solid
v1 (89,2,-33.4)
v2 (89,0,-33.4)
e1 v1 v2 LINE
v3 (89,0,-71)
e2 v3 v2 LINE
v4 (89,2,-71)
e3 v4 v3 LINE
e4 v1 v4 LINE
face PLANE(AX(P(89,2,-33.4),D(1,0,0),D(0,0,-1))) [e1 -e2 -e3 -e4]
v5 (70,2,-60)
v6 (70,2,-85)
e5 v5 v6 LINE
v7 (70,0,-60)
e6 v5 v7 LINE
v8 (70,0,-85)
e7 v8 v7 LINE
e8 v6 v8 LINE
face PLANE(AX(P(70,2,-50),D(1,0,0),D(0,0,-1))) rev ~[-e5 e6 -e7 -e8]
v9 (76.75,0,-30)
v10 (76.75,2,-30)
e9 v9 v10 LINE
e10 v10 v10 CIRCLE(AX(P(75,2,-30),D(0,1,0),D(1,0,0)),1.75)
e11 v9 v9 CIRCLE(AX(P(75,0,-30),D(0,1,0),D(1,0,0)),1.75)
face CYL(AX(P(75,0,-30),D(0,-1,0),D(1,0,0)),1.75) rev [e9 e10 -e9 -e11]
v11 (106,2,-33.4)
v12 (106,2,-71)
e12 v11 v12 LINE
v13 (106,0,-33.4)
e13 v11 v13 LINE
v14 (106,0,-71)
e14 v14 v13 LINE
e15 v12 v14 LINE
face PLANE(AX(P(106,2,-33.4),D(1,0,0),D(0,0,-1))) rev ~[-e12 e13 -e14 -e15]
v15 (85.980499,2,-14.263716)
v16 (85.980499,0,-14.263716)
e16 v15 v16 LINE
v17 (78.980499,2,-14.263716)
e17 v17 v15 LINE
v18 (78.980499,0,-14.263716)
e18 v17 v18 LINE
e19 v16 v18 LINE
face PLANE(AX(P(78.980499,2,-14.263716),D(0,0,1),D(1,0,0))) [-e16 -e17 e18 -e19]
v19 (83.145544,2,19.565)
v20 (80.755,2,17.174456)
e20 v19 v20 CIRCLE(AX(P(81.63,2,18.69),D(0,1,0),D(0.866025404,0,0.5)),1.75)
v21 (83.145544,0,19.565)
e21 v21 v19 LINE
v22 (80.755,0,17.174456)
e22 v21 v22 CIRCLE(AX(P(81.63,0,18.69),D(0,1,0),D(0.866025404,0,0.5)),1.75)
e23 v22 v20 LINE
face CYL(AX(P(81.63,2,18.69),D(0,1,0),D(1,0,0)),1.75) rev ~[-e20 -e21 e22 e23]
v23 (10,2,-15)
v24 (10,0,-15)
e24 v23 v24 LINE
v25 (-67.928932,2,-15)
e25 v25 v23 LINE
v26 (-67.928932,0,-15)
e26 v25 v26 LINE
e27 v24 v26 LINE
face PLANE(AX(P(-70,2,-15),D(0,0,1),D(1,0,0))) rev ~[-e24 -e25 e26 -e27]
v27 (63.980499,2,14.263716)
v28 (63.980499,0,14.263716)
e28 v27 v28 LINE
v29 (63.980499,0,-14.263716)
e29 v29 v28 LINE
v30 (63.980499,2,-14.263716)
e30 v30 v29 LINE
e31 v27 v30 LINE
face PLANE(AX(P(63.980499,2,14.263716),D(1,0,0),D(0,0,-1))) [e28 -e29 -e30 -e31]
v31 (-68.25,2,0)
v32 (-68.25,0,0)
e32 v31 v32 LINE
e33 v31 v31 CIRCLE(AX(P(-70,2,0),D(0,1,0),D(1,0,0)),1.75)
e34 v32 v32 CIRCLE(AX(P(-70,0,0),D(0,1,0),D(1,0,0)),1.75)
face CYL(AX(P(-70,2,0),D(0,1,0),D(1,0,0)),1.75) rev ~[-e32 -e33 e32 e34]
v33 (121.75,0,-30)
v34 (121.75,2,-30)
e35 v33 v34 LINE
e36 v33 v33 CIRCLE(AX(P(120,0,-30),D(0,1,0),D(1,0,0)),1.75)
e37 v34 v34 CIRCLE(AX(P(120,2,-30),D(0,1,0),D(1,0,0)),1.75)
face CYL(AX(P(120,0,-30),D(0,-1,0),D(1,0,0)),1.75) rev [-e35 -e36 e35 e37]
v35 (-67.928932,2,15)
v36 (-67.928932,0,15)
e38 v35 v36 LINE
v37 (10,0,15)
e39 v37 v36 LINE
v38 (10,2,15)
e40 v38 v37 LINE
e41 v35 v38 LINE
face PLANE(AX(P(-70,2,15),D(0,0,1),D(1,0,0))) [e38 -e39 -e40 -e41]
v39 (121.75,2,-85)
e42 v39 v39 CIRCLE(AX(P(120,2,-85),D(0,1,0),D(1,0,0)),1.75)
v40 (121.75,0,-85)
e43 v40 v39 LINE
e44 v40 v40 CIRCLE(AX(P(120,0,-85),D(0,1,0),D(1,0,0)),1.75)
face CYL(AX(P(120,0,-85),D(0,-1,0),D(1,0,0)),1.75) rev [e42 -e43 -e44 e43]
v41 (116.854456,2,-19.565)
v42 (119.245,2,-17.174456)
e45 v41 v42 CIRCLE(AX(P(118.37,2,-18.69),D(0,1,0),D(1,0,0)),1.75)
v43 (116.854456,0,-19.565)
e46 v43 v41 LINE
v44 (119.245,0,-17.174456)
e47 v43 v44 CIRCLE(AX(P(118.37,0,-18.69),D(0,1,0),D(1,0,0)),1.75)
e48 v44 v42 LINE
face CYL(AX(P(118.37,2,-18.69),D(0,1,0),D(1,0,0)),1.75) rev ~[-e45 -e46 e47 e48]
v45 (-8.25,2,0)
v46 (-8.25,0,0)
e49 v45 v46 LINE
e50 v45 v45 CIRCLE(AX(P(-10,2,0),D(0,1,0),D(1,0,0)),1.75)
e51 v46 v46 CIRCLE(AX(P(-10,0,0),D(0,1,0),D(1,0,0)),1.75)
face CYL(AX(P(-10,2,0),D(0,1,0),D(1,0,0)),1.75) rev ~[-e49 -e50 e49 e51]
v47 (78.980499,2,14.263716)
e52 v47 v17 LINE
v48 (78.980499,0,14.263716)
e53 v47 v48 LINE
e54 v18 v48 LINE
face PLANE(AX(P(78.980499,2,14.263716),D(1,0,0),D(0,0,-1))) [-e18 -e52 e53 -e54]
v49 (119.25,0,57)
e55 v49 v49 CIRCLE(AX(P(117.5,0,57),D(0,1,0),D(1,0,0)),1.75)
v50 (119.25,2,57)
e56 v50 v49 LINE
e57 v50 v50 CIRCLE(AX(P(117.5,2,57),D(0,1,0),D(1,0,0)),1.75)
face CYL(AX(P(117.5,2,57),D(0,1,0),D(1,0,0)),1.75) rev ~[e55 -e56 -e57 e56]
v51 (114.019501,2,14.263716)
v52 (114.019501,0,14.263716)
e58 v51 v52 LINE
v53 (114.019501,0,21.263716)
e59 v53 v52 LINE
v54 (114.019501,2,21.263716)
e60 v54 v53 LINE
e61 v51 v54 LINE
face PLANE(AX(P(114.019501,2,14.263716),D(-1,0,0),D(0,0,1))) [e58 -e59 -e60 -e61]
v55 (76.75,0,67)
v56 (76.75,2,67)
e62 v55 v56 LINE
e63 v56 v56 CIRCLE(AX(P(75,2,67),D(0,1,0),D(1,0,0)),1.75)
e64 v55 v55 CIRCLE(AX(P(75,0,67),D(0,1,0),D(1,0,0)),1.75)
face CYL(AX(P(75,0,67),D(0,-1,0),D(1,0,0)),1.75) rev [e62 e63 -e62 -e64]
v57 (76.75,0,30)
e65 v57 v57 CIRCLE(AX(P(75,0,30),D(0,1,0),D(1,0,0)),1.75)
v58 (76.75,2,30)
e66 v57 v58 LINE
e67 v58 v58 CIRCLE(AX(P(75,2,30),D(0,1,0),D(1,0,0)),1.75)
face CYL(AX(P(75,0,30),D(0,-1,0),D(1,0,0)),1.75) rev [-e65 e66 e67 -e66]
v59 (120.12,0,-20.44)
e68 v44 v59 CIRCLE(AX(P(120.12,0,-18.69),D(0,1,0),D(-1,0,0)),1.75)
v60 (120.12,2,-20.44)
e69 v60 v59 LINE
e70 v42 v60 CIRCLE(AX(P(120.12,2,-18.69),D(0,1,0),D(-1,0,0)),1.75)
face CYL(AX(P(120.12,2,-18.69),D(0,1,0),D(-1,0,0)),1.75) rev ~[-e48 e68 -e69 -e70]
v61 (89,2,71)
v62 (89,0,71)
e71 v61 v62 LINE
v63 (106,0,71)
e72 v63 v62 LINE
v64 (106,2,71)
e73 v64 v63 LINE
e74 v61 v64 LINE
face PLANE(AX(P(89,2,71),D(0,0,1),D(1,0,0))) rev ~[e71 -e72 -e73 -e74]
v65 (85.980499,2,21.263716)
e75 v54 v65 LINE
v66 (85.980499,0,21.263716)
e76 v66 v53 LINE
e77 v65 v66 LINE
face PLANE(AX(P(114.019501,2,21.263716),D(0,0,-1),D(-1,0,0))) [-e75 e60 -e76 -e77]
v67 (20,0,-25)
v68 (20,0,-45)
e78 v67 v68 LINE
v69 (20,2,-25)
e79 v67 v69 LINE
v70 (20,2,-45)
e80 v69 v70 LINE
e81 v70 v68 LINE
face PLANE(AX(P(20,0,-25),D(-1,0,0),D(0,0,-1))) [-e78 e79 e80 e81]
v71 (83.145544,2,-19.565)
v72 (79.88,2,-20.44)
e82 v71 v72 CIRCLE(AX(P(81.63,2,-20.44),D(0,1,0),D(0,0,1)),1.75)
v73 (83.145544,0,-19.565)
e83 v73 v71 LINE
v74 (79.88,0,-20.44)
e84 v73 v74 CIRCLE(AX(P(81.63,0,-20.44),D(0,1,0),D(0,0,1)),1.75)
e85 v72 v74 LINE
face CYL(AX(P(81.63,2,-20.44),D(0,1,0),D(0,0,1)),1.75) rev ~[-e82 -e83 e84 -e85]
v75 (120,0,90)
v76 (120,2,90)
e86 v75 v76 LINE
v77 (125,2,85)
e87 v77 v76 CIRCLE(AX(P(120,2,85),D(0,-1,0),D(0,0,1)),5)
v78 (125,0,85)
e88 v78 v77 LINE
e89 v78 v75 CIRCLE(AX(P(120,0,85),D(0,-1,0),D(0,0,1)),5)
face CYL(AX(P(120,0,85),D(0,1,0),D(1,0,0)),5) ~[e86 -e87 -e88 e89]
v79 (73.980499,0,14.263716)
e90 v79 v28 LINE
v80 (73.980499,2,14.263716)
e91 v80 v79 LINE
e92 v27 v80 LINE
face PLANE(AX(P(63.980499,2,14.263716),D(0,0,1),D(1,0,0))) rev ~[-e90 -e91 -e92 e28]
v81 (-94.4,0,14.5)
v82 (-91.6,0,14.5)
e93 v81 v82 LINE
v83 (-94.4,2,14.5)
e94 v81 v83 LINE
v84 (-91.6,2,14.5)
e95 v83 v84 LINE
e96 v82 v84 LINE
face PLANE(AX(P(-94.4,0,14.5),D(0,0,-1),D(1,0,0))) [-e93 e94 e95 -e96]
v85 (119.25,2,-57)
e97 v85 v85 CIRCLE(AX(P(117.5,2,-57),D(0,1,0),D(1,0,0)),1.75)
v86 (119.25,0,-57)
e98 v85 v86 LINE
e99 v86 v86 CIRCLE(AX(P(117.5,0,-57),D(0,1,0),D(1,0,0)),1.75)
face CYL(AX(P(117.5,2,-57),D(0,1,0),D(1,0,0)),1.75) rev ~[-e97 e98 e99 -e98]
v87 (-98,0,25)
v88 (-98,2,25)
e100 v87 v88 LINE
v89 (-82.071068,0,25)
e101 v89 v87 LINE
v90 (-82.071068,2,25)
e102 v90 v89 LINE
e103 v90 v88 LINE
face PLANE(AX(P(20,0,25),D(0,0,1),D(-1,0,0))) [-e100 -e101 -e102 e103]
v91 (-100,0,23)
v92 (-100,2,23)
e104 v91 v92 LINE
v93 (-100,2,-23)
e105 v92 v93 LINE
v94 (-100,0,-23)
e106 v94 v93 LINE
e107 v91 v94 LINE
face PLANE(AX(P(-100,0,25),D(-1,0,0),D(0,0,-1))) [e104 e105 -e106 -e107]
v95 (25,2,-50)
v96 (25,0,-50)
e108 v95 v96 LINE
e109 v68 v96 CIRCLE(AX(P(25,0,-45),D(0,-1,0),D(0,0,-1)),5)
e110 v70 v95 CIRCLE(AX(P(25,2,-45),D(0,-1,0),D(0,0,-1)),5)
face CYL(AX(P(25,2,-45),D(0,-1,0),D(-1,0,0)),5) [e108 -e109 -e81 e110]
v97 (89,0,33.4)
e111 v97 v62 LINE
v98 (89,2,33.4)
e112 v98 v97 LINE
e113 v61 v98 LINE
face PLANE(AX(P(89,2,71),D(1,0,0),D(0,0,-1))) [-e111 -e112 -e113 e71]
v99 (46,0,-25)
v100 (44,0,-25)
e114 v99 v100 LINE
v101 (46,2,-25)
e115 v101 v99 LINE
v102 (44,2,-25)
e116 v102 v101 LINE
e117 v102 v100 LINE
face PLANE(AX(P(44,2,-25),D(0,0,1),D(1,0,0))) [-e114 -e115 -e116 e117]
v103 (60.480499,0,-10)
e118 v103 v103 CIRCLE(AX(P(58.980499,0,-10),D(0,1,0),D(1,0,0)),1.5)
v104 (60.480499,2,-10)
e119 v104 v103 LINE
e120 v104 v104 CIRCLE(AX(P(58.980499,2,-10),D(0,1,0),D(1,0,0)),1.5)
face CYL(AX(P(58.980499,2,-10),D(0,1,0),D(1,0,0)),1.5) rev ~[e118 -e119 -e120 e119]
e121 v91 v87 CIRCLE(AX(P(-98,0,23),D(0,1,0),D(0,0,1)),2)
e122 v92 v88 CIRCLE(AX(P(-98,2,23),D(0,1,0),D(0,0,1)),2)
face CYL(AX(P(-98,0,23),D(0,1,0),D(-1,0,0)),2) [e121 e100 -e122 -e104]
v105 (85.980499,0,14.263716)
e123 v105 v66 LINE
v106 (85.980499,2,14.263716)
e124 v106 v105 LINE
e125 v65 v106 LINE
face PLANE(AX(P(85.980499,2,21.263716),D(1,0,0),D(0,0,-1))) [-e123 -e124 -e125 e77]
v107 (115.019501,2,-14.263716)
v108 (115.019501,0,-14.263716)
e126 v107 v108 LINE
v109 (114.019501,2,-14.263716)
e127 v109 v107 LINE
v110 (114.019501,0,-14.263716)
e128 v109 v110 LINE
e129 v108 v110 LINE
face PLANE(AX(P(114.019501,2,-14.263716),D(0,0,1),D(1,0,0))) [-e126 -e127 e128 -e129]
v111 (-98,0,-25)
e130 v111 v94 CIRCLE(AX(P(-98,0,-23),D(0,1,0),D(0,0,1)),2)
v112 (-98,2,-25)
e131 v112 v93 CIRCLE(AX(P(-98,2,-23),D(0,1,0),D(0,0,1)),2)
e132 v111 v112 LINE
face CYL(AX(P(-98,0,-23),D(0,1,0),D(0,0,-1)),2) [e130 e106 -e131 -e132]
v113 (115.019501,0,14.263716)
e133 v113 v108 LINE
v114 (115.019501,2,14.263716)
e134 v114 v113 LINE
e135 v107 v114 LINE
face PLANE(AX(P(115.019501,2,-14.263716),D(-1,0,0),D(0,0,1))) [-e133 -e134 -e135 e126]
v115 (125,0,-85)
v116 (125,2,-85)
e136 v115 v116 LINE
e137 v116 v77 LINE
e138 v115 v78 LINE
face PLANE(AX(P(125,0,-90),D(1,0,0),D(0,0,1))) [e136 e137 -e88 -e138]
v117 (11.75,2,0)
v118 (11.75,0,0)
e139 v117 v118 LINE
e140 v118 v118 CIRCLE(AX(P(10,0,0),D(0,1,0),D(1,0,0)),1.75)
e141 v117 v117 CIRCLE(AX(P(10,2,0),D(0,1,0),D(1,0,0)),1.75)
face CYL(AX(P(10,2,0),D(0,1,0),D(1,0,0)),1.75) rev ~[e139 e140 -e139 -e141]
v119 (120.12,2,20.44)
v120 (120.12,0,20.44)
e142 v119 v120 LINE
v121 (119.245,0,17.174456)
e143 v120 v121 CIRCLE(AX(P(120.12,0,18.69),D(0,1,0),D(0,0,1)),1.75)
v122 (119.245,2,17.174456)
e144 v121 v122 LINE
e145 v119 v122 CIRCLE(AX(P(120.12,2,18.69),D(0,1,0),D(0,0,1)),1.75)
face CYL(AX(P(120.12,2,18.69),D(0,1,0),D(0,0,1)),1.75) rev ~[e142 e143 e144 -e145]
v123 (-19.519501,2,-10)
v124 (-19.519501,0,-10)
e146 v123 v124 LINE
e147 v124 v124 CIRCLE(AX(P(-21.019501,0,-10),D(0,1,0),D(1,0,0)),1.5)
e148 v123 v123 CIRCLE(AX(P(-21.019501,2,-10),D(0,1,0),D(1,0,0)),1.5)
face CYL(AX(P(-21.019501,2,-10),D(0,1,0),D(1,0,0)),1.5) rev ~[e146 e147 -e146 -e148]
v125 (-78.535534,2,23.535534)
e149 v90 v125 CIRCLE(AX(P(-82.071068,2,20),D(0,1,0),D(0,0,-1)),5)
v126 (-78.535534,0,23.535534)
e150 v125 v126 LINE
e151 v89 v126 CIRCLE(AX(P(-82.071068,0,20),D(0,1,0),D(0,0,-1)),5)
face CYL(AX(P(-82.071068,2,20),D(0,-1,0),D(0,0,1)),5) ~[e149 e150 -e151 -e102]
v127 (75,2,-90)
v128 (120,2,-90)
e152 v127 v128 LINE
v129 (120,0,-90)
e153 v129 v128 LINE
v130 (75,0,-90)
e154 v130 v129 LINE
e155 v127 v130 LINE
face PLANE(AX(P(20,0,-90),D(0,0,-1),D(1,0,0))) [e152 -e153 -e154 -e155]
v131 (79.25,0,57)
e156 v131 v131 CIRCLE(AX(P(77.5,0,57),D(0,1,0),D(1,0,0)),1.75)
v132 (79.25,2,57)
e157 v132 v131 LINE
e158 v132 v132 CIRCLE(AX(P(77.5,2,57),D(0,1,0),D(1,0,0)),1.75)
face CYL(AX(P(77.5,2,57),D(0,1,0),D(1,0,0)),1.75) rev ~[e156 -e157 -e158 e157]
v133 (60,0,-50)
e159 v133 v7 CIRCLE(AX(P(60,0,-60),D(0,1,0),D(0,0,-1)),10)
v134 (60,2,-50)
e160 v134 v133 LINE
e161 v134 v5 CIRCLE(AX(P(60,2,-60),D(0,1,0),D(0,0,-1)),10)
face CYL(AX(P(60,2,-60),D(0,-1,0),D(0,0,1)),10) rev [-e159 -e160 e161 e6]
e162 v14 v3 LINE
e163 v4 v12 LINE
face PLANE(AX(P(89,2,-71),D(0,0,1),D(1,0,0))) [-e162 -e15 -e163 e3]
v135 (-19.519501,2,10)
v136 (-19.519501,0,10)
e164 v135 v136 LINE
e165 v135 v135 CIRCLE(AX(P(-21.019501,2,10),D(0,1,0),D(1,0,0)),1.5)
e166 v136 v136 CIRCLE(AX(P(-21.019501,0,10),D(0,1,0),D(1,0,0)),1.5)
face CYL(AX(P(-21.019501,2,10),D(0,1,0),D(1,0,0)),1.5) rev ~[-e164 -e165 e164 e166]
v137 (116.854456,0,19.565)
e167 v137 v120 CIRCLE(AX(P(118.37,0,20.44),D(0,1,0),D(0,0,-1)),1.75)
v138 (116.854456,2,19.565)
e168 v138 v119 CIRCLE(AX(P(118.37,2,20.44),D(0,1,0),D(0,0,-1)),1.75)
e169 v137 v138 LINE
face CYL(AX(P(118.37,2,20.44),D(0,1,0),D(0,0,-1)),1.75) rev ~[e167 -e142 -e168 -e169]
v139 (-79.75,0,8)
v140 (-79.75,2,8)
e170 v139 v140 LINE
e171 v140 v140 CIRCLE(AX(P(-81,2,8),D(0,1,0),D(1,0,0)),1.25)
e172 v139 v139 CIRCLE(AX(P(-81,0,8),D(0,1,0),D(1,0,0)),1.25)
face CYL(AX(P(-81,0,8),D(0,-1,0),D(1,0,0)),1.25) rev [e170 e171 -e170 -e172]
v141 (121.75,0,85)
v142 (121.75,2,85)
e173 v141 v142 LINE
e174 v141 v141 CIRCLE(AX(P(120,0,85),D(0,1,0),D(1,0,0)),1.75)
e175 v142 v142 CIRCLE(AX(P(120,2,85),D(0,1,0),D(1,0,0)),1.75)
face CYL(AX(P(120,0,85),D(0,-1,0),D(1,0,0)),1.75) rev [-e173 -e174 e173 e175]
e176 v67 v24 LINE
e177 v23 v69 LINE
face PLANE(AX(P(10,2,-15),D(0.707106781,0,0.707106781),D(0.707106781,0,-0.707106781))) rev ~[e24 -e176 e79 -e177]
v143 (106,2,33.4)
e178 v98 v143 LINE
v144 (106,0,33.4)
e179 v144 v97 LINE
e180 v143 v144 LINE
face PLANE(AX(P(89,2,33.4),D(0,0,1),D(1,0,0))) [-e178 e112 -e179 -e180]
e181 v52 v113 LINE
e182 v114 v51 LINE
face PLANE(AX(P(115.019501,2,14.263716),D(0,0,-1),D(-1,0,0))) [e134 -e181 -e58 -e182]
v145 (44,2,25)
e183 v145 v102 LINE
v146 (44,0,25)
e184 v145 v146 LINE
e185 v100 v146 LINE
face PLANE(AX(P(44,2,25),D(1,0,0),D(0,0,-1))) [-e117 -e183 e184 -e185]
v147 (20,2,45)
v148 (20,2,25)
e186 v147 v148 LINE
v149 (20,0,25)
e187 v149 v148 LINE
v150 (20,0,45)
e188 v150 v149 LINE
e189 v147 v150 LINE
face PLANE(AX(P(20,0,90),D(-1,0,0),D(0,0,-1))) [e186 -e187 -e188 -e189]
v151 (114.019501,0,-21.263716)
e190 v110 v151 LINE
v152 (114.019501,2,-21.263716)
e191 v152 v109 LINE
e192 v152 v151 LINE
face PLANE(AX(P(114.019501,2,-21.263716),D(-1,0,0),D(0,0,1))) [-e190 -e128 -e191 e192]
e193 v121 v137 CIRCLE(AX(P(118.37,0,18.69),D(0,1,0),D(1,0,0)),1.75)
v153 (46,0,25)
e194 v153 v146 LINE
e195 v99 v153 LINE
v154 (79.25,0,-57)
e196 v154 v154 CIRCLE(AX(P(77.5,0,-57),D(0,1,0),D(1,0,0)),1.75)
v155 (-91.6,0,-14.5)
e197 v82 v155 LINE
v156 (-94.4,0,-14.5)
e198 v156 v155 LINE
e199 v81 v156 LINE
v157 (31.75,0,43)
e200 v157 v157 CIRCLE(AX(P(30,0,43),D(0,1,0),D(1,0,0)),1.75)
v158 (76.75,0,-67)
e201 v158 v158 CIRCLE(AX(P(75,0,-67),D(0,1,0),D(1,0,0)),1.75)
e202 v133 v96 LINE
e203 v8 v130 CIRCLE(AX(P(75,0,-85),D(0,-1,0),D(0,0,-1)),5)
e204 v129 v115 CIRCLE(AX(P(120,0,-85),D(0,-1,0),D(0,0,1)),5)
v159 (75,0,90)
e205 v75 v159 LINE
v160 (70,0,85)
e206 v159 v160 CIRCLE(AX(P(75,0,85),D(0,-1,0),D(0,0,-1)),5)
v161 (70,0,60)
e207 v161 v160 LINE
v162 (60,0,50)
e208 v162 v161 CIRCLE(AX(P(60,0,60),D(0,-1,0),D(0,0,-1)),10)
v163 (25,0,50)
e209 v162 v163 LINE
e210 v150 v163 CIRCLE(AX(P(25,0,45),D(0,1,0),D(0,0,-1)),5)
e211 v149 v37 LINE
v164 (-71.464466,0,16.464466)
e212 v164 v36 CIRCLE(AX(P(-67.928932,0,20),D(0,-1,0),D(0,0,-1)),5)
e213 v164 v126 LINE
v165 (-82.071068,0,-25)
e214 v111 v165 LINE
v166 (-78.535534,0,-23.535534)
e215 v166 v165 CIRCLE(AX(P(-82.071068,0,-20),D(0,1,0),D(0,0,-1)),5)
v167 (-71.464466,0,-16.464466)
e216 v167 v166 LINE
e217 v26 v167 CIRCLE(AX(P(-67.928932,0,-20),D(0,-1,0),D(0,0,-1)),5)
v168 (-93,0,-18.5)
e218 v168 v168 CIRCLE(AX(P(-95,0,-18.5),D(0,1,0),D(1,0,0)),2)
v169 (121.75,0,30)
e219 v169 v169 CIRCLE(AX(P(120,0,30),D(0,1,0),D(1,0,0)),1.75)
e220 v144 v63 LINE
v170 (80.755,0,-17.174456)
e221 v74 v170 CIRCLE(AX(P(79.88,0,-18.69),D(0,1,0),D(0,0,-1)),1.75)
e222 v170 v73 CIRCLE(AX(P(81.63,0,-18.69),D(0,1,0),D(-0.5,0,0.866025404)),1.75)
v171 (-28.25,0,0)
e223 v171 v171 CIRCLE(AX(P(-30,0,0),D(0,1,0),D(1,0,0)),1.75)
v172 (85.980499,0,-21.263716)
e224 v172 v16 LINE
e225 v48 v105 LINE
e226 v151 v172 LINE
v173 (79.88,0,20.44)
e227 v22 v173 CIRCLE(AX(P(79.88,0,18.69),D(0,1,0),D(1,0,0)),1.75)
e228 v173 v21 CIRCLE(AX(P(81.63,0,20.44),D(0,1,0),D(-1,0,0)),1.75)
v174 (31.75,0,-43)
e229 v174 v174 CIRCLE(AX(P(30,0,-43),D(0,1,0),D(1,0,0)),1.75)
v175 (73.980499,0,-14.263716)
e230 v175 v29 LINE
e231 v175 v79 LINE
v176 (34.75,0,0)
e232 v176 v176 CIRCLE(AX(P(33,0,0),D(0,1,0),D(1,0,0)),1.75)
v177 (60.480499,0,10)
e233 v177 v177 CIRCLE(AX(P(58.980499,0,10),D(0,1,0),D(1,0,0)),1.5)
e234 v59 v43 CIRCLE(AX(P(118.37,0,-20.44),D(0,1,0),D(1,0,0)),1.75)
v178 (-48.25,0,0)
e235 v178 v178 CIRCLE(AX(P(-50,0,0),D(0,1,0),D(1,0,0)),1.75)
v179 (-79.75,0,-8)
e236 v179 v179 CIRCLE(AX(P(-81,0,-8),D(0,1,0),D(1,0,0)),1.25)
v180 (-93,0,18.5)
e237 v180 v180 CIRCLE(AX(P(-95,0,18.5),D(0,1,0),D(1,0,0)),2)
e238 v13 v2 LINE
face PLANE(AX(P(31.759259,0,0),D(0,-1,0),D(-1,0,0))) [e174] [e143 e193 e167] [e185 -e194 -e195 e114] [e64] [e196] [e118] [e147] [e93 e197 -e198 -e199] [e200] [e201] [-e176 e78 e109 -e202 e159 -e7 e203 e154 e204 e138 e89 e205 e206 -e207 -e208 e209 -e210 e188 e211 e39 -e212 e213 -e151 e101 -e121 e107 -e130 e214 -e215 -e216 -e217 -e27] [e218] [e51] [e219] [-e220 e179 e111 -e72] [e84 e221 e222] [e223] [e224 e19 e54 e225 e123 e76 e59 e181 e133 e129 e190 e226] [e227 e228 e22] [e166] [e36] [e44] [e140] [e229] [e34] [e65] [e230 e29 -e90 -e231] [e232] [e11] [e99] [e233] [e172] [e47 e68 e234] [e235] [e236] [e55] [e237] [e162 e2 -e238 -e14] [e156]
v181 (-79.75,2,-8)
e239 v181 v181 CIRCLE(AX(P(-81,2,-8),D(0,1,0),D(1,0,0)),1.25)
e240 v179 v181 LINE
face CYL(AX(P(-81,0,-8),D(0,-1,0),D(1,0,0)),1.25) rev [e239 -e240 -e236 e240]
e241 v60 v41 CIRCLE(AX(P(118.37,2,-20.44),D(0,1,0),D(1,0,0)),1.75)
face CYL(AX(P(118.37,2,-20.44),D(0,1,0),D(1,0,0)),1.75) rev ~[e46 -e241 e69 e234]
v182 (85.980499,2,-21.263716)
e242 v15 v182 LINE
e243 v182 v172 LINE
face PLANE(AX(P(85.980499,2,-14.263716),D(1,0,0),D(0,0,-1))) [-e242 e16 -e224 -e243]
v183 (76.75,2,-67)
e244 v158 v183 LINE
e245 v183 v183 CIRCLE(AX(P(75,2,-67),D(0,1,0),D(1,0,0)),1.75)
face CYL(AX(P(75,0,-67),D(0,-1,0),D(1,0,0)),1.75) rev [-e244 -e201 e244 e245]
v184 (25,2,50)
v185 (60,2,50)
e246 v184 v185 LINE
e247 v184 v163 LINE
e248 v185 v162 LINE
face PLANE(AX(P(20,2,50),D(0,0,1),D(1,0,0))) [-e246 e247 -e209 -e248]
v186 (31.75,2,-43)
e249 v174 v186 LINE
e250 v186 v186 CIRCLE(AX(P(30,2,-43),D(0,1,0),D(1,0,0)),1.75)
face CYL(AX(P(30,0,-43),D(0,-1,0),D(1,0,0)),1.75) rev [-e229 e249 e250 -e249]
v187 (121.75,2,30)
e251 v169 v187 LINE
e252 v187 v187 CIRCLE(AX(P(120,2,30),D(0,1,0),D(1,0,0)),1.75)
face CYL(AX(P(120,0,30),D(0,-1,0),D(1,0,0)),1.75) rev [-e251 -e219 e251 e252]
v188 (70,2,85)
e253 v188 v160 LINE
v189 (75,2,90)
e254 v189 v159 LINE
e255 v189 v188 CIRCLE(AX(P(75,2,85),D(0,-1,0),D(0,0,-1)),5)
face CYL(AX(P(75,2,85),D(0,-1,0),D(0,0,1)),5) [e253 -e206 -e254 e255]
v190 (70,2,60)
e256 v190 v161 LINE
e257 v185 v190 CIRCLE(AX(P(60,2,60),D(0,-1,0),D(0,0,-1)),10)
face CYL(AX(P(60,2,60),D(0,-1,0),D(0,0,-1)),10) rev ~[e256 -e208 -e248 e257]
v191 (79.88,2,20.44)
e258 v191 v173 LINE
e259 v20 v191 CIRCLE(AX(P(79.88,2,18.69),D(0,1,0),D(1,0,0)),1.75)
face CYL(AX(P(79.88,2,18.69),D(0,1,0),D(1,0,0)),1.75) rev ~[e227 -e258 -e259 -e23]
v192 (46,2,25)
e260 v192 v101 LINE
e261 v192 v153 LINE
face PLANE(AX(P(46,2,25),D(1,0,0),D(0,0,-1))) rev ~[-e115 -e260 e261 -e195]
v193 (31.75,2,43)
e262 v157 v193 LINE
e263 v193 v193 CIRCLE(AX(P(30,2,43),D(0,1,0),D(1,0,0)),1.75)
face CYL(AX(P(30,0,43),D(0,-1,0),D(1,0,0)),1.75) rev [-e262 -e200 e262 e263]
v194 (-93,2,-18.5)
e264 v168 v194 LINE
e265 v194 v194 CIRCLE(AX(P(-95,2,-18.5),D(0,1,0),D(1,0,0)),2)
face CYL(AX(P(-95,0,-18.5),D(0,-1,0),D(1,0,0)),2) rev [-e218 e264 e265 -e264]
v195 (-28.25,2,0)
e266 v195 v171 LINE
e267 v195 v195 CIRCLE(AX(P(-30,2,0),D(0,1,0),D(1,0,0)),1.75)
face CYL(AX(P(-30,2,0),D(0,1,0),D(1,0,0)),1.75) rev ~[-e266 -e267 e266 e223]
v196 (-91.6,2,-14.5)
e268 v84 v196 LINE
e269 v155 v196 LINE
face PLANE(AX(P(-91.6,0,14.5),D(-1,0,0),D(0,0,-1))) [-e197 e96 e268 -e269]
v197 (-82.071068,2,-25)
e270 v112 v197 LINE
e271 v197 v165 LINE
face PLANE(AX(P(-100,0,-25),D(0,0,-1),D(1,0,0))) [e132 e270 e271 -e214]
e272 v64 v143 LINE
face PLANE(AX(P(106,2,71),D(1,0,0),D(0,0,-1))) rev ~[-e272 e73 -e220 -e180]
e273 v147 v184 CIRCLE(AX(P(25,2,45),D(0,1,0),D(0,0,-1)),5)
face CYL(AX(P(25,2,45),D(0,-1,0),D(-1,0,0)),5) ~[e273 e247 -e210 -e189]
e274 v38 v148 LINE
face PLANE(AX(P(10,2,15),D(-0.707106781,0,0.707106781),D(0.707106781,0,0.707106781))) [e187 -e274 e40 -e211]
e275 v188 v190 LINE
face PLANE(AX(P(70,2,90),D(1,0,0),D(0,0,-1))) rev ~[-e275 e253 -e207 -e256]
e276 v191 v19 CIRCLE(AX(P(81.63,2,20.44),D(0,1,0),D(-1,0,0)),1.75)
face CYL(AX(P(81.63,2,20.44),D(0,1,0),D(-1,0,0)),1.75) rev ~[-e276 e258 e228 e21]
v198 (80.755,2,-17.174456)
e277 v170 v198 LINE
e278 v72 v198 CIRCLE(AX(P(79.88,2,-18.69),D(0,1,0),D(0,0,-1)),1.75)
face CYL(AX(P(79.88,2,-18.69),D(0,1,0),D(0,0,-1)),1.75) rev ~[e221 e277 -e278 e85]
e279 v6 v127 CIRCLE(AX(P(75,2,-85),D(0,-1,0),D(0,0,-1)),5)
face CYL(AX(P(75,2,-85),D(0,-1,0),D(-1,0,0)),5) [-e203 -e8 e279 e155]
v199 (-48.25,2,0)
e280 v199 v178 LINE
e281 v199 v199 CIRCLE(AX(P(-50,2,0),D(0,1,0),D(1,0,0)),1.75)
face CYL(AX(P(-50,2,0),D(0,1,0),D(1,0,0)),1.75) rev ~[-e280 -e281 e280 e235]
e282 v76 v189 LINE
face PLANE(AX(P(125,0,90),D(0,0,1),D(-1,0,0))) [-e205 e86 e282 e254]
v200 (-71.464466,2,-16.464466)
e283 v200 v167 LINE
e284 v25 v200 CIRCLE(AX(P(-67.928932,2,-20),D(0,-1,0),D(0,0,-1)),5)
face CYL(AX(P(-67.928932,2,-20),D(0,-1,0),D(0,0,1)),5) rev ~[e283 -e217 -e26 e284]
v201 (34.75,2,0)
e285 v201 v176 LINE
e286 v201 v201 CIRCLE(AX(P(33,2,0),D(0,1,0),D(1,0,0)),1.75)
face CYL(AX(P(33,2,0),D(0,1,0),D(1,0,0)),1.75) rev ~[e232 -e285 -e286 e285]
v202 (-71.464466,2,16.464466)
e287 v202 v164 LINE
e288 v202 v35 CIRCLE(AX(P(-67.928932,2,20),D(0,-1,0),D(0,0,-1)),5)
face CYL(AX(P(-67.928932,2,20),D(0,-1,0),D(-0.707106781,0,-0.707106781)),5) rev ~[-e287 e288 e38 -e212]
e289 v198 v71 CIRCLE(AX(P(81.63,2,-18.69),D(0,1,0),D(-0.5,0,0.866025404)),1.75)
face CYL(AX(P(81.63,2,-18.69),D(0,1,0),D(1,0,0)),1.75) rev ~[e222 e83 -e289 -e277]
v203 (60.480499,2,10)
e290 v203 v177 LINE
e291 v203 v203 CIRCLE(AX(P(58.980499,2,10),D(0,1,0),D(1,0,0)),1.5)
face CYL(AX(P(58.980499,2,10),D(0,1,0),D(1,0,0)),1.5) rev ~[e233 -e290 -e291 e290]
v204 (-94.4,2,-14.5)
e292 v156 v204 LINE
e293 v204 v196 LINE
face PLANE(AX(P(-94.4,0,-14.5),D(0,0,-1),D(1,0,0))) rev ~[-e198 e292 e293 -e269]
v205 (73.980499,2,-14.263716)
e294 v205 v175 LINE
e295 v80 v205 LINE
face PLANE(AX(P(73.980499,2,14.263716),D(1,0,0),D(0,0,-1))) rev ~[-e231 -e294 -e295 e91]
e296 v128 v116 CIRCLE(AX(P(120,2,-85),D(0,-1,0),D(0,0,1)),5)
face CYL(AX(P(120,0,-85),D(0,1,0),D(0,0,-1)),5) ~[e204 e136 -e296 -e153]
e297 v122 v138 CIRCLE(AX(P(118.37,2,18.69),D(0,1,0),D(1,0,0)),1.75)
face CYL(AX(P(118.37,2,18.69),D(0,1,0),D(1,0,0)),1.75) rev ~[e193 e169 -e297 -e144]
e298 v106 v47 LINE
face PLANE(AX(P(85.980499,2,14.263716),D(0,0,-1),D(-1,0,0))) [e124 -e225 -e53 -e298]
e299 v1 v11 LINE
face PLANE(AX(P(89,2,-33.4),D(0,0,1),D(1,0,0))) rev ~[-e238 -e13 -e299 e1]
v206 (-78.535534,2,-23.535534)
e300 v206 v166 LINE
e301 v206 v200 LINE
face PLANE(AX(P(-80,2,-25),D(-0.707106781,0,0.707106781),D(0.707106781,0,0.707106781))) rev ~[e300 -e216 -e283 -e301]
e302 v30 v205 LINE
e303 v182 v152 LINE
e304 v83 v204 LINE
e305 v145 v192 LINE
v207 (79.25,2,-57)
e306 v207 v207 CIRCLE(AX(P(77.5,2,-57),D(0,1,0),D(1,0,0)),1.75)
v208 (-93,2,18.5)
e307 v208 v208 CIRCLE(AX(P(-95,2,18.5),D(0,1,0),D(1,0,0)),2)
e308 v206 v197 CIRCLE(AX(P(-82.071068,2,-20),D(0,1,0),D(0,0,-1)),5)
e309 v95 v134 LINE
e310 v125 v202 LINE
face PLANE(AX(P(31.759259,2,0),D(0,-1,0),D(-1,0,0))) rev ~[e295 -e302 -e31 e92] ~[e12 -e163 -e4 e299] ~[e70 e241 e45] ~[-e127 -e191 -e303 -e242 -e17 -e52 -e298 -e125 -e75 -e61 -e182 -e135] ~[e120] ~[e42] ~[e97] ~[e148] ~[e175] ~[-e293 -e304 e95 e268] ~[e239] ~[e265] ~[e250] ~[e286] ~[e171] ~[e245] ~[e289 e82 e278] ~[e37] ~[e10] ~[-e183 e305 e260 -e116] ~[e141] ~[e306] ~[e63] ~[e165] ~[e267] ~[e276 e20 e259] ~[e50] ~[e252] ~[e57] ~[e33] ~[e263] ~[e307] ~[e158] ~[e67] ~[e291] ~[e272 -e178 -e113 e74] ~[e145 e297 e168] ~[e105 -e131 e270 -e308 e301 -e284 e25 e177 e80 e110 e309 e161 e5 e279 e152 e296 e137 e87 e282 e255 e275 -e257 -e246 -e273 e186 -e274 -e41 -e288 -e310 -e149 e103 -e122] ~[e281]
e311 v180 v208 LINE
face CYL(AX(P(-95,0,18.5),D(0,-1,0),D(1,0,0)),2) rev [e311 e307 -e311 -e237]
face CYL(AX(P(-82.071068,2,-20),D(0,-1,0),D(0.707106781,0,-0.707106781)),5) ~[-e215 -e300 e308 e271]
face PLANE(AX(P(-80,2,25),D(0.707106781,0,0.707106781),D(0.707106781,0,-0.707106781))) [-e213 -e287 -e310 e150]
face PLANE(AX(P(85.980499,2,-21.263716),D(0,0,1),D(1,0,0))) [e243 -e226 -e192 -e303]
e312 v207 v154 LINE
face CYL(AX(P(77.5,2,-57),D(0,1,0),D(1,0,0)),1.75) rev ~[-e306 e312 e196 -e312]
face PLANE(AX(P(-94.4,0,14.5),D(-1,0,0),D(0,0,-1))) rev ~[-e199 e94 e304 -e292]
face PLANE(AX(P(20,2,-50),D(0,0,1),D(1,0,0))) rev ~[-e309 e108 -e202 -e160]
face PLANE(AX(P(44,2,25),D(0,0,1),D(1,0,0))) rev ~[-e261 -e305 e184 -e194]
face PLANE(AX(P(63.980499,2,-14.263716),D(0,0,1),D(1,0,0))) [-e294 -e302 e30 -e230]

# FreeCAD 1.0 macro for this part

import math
import FreeCAD as App
import Part
import Sketcher
from FreeCAD import Vector


def edges_at(feature, points):
    """Names of the edges that pass closest to the given points."""
    edges = feature.Shape.Edges
    near = lambda p: min(range(len(edges)), key=lambda i: edges[i].distToShape(Part.Vertex(*p))[0])
    return sorted({f"Edge{near(p) + 1}" for p in points})

doc = App.newDocument("Part")
body = doc.addObject("PartDesign::Body", "Body")

# Sketch on XZ plane
sketch1 = body.newObject("Sketcher::SketchObject", "Sketch")
sketch1.AttachmentSupport = (doc.getObject("XZ_Plane"), [""])
sketch1.MapMode = "FlatFace"
sketch1.addGeometry([
    Part.LineSegment(Vector(125, -90, 0), Vector(20, -90, 0)),  # 0
    Part.LineSegment(Vector(20, -90, 0), Vector(20, -25, 0)),  # 1
    Part.LineSegment(Vector(20, -25, 0), Vector(-100, -25, 0)),  # 2
    Part.LineSegment(Vector(-100, -25, 0), Vector(-100, 25, 0)),  # 3
    Part.LineSegment(Vector(-100, 25, 0), Vector(20, 25, 0)),  # 4
    Part.LineSegment(Vector(20, 25, 0), Vector(20, 90, 0)),  # 5
    Part.LineSegment(Vector(20, 90, 0), Vector(125, 90, 0)),  # 6
    Part.LineSegment(Vector(125, 90, 0), Vector(125, -90, 0)),  # 7
    Part.Circle(Vector(120, 85, 0), Vector(0, 0, 1), 1.8),  # 8
    Part.Circle(Vector(75, 67, 0), Vector(0, 0, 1), 1.8),  # 9
    Part.Circle(Vector(120, 30, 0), Vector(0, 0, 1), 1.8),  # 10
    Part.Circle(Vector(75, 30, 0), Vector(0, 0, 1), 1.8),  # 11
    Part.Circle(Vector(30, 43, 0), Vector(0, 0, 1), 1.8),  # 12
    Part.Circle(Vector(-95, 18.5, 0), Vector(0, 0, 1), 2),  # 13
    Part.Circle(Vector(-81, 8, 0), Vector(0, 0, 1), 1.2),  # 14
    Part.LineSegment(Vector(-94.4, 14.5, 0), Vector(-94.4, -14.5, 0)),  # 15
    Part.LineSegment(Vector(-94.4, -14.5, 0), Vector(-91.6, -14.5, 0)),  # 16
    Part.LineSegment(Vector(-91.6, -14.5, 0), Vector(-91.6, 14.5, 0)),  # 17
    Part.LineSegment(Vector(-91.6, 14.5, 0), Vector(-94.4, 14.5, 0)),  # 18
    Part.Circle(Vector(120, -30, 0), Vector(0, 0, 1), 1.8),  # 19
    Part.Circle(Vector(75, -30, 0), Vector(0, 0, 1), 1.8),  # 20
    Part.Circle(Vector(30, -43, 0), Vector(0, 0, 1), 1.8),  # 21
    Part.Circle(Vector(120, -85, 0), Vector(0, 0, 1), 1.8),  # 22
    Part.Circle(Vector(75, -67, 0), Vector(0, 0, 1), 1.8),  # 23
    Part.Circle(Vector(-81, -8, 0), Vector(0, 0, 1), 1.2),  # 24
    Part.Circle(Vector(-95, -18.5, 0), Vector(0, 0, 1), 2),  # 25
], False)
sketch1.addConstraint([
    Sketcher.Constraint("Coincident", 0, 2, 1, 1),
    Sketcher.Constraint("Coincident", 1, 2, 2, 1),
    Sketcher.Constraint("Coincident", 2, 2, 3, 1),
    Sketcher.Constraint("Coincident", 3, 2, 4, 1),
    Sketcher.Constraint("Coincident", 4, 2, 5, 1),
    Sketcher.Constraint("Coincident", 5, 2, 6, 1),
    Sketcher.Constraint("Coincident", 6, 2, 7, 1),
    Sketcher.Constraint("Coincident", 7, 2, 0, 1),
    Sketcher.Constraint("Coincident", 15, 2, 16, 1),
    Sketcher.Constraint("Coincident", 16, 2, 17, 1),
    Sketcher.Constraint("Coincident", 17, 2, 18, 1),
    Sketcher.Constraint("Coincident", 18, 2, 15, 1),
    Sketcher.Constraint("Horizontal", 0),
    Sketcher.Constraint("Vertical", 1),
    Sketcher.Constraint("Horizontal", 2),
    Sketcher.Constraint("Vertical", 3),
    Sketcher.Constraint("Horizontal", 4),
    Sketcher.Constraint("Vertical", 5),
    Sketcher.Constraint("Horizontal", 6),
    Sketcher.Constraint("Vertical", 7),
    Sketcher.Constraint("Vertical", 15),
    Sketcher.Constraint("Horizontal", 16),
    Sketcher.Constraint("Vertical", 17),
    Sketcher.Constraint("Horizontal", 18),
    Sketcher.Constraint("Equal", 8, 9),
    Sketcher.Constraint("Equal", 9, 10),
    Sketcher.Constraint("Equal", 10, 11),
    Sketcher.Constraint("Equal", 11, 12),
    Sketcher.Constraint("Equal", 12, 19),
    Sketcher.Constraint("Equal", 19, 20),
    Sketcher.Constraint("Equal", 20, 21),
    Sketcher.Constraint("Equal", 21, 22),
    Sketcher.Constraint("Equal", 22, 23),
    Sketcher.Constraint("Equal", 14, 24),
    Sketcher.Constraint("Equal", 13, 25),
    Sketcher.Constraint("Symmetric", 10, 3, 19, 3, -1),
    Sketcher.Constraint("Symmetric", 11, 3, 20, 3, -1),
    Sketcher.Constraint("Symmetric", 12, 3, 21, 3, -1),
    Sketcher.Constraint("Symmetric", 8, 3, 22, 3, -1),
    Sketcher.Constraint("Symmetric", 9, 3, 23, 3, -1),
    Sketcher.Constraint("Symmetric", 14, 3, 24, 3, -1),
    Sketcher.Constraint("Symmetric", 13, 3, 25, 3, -1),
    Sketcher.Constraint("Symmetric", 1, 2, 4, 2, -1),
    Sketcher.Constraint("Horizontal", 10, 3, 11, 3),
    Sketcher.Constraint("Vertical", 8, 3, 10, 3),
    Sketcher.Constraint("Vertical", 9, 3, 11, 3),
    Sketcher.Constraint("Equal", 1, 5),
    Sketcher.Constraint("Diameter", 13, 4.0),
    Sketcher.Constraint("Diameter", 8, 3.5),
    Sketcher.Constraint("Diameter", 14, 2.5),
    Sketcher.Constraint("DistanceX", 0, 2, 0, 1, 105.0),
    Sketcher.Constraint("DistanceX", 2, 2, 2, 1, 120.0),
    Sketcher.Constraint("DistanceY", 1, 1, 1, 2, 65.0),
    Sketcher.Constraint("DistanceY", 3, 1, 3, 2, 50.0),
    Sketcher.Constraint("DistanceY", 15, 2, 15, 1, 29.0),
    Sketcher.Constraint("DistanceX", 16, 1, 16, 2, 2.8),
    Sketcher.Constraint("DistanceX", -1, 1, 8, 3, 120.0),
    Sketcher.Constraint("DistanceY", -1, 1, 8, 3, 85.0),
    Sketcher.Constraint("DistanceX", -1, 1, 9, 3, 75.0),
    Sketcher.Constraint("DistanceY", -1, 1, 9, 3, 67.0),
    Sketcher.Constraint("DistanceY", -1, 1, 10, 3, 30.0),
    Sketcher.Constraint("DistanceX", -1, 1, 12, 3, 30.0),
    Sketcher.Constraint("DistanceY", -1, 1, 12, 3, 43.0),
    Sketcher.Constraint("DistanceX", 13, 3, -1, 1, 95.0),
    Sketcher.Constraint("DistanceX", 14, 3, -1, 1, 81.0),
    Sketcher.Constraint("DistanceY", -1, 1, 14, 3, 8.0),
    Sketcher.Constraint("DistanceX", -1, 1, 0, 2, 20.0),
    Sketcher.Constraint("DistanceY", 25, 3, 13, 3, 37.0),
    Sketcher.Constraint("DistanceY", 25, 3, 15, 2, 4.0),
    Sketcher.Constraint("DistanceX", 15, 2, -1, 1, 94.4),
])
pad1 = body.newObject("PartDesign::Pad", "Pad")
pad1.Profile = sketch1
pad1.Length = 2
pad1.Reversed = True

# Sketch on XZ plane
sketch2 = body.newObject("Sketcher::SketchObject", "Sketch001")
sketch2.AttachmentSupport = (doc.getObject("XZ_Plane"), [""])
sketch2.MapMode = "FlatFace"
sketch2.AttachmentOffset = App.Placement(Vector(0, 0, -2), App.Rotation())
sketch2.addGeometry([
    Part.Circle(Vector(77.5, -57, 0), Vector(0, 0, 1), 1.8),  # 0
    Part.Circle(Vector(117.5, -57, 0), Vector(0, 0, 1), 1.8),  # 1
    Part.Circle(Vector(117.5, 57, 0), Vector(0, 0, 1), 1.8),  # 2
    Part.Circle(Vector(77.5, 57, 0), Vector(0, 0, 1), 1.8),  # 3
    Part.Circle(Vector(81.6, -18.7, 0), Vector(0, 0, 1), 1.8),  # 4
    Part.Circle(Vector(118.4, -18.7, 0), Vector(0, 0, 1), 1.8),  # 5
    Part.Circle(Vector(81.6, 18.7, 0), Vector(0, 0, 1), 1.8),  # 6
    Part.Circle(Vector(118.4, 18.7, 0), Vector(0, 0, 1), 1.8),  # 7
    Part.Circle(Vector(33, 0, 0), Vector(0, 0, 1), 1.8),  # 8
    Part.LineSegment(Vector(89, -71, 0), Vector(89, -33.4, 0)),  # 9
    Part.LineSegment(Vector(89, -33.4, 0), Vector(106, -33.4, 0)),  # 10
    Part.LineSegment(Vector(106, -33.4, 0), Vector(106, -71, 0)),  # 11
    Part.LineSegment(Vector(106, -71, 0), Vector(89, -71, 0)),  # 12
    Part.LineSegment(Vector(89, 33.4, 0), Vector(89, 71, 0)),  # 13
    Part.LineSegment(Vector(89, 71, 0), Vector(106, 71, 0)),  # 14
    Part.LineSegment(Vector(106, 71, 0), Vector(106, 33.4, 0)),  # 15
    Part.LineSegment(Vector(106, 33.4, 0), Vector(89, 33.4, 0)),  # 16
    Part.LineSegment(Vector(86, -21.3, 0), Vector(86, -14.3, 0)),  # 17
    Part.LineSegment(Vector(86, -14.3, 0), Vector(79, -14.3, 0)),  # 18
    Part.LineSegment(Vector(79, -14.3, 0), Vector(79, 14.3, 0)),  # 19
    Part.LineSegment(Vector(79, 14.3, 0), Vector(86, 14.3, 0)),  # 20
    Part.LineSegment(Vector(86, 14.3, 0), Vector(86, 21.3, 0)),  # 21
    Part.LineSegment(Vector(86, 21.3, 0), Vector(114, 21.3, 0)),  # 22
    Part.LineSegment(Vector(114, 21.3, 0), Vector(114, 14.3, 0)),  # 23
    Part.LineSegment(Vector(114, 14.3, 0), Vector(115, 14.3, 0)),  # 24
    Part.LineSegment(Vector(115, 14.3, 0), Vector(115, -14.3, 0)),  # 25
    Part.LineSegment(Vector(115, -14.3, 0), Vector(114, -14.3, 0)),  # 26
    Part.LineSegment(Vector(114, -14.3, 0), Vector(114, -21.3, 0)),  # 27
    Part.LineSegment(Vector(114, -21.3, 0), Vector(86, -21.3, 0)),  # 28
    Part.LineSegment(Vector(44, -25, 0), Vector(44, 25, 0)),  # 29
    Part.LineSegment(Vector(44, 25, 0), Vector(46, 25, 0)),  # 30
    Part.LineSegment(Vector(46, 25, 0), Vector(46, -25, 0)),  # 31
    Part.LineSegment(Vector(46, -25, 0), Vector(44, -25, 0)),  # 32
    Part.LineSegment(Vector(20, 50, 0), Vector(20, 90, 0)),  # 33
    Part.LineSegment(Vector(20, 90, 0), Vector(70, 90, 0)),  # 34
    Part.LineSegment(Vector(70, 90, 0), Vector(70, 50, 0)),  # 35
    Part.LineSegment(Vector(70, 50, 0), Vector(20, 50, 0)),  # 36
    Part.LineSegment(Vector(20, -90, 0), Vector(20, -50, 0)),  # 37
    Part.LineSegment(Vector(20, -50, 0), Vector(70, -50, 0)),  # 38
    Part.LineSegment(Vector(70, -50, 0), Vector(70, -90, 0)),  # 39
    Part.LineSegment(Vector(70, -90, 0), Vector(20, -90, 0)),  # 40
    Part.LineSegment(Vector(64, -14.3, 0), Vector(64, 14.3, 0)),  # 41
    Part.LineSegment(Vector(64, 14.3, 0), Vector(74, 14.3, 0)),  # 42
    Part.LineSegment(Vector(74, 14.3, 0), Vector(74, -14.3, 0)),  # 43
    Part.LineSegment(Vector(74, -14.3, 0), Vector(64, -14.3, 0)),  # 44
], False)
sketch2.addConstraint([
    Sketcher.Constraint("Coincident", 9, 2, 10, 1),
    Sketcher.Constraint("Coincident", 10, 2, 11, 1),
    Sketcher.Constraint("Coincident", 11, 2, 12, 1),
    Sketcher.Constraint("Coincident", 12, 2, 9, 1),
    Sketcher.Constraint("Coincident", 13, 2, 14, 1),
    Sketcher.Constraint("Coincident", 14, 2, 15, 1),
    Sketcher.Constraint("Coincident", 15, 2, 16, 1),
    Sketcher.Constraint("Coincident", 16, 2, 13, 1),
    Sketcher.Constraint("Coincident", 17, 2, 18, 1),
    Sketcher.Constraint("Coincident", 18, 2, 19, 1),
    Sketcher.Constraint("Coincident", 19, 2, 20, 1),
    Sketcher.Constraint("Coincident", 20, 2, 21, 1),
    Sketcher.Constraint("Coincident", 21, 2, 22, 1),
    Sketcher.Constraint("Coincident", 22, 2, 23, 1),
    Sketcher.Constraint("Coincident", 23, 2, 24, 1),
    Sketcher.Constraint("Coincident", 24, 2, 25, 1),
    Sketcher.Constraint("Coincident", 25, 2, 26, 1),
    Sketcher.Constraint("Coincident", 26, 2, 27, 1),
    Sketcher.Constraint("Coincident", 27, 2, 28, 1),
    Sketcher.Constraint("Coincident", 28, 2, 17, 1),
    Sketcher.Constraint("Coincident", 29, 2, 30, 1),
    Sketcher.Constraint("Coincident", 30, 2, 31, 1),
    Sketcher.Constraint("Coincident", 31, 2, 32, 1),
    Sketcher.Constraint("Coincident", 32, 2, 29, 1),
    Sketcher.Constraint("Coincident", 33, 2, 34, 1),
    Sketcher.Constraint("Coincident", 34, 2, 35, 1),
    Sketcher.Constraint("Coincident", 35, 2, 36, 1),
    Sketcher.Constraint("Coincident", 36, 2, 33, 1),
    Sketcher.Constraint("Coincident", 37, 2, 38, 1),
    Sketcher.Constraint("Coincident", 38, 2, 39, 1),
    Sketcher.Constraint("Coincident", 39, 2, 40, 1),
    Sketcher.Constraint("Coincident", 40, 2, 37, 1),
    Sketcher.Constraint("Coincident", 41, 2, 42, 1),
    Sketcher.Constraint("Coincident", 42, 2, 43, 1),
    Sketcher.Constraint("Coincident", 43, 2, 44, 1),
    Sketcher.Constraint("Coincident", 44, 2, 41, 1),
    Sketcher.Constraint("Vertical", 9),
    Sketcher.Constraint("Horizontal", 10),
    Sketcher.Constraint("Vertical", 11),
    Sketcher.Constraint("Horizontal", 12),
    Sketcher.Constraint("Vertical", 13),
    Sketcher.Constraint("Horizontal", 14),
    Sketcher.Constraint("Vertical", 15),
    Sketcher.Constraint("Horizontal", 16),
    Sketcher.Constraint("Vertical", 17),
    Sketcher.Constraint("Horizontal", 18),
    Sketcher.Constraint("Vertical", 19),
    Sketcher.Constraint("Horizontal", 20),
    Sketcher.Constraint("Vertical", 21),
    Sketcher.Constraint("Horizontal", 22),
    Sketcher.Constraint("Vertical", 23),
    Sketcher.Constraint("Horizontal", 24),
    Sketcher.Constraint("Vertical", 25),
    Sketcher.Constraint("Horizontal", 26),
    Sketcher.Constraint("Vertical", 27),
    Sketcher.Constraint("Horizontal", 28),
    Sketcher.Constraint("Vertical", 29),
    Sketcher.Constraint("Horizontal", 30),
    Sketcher.Constraint("Vertical", 31),
    Sketcher.Constraint("Horizontal", 32),
    Sketcher.Constraint("Vertical", 33),
    Sketcher.Constraint("Horizontal", 34),
    Sketcher.Constraint("Vertical", 35),
    Sketcher.Constraint("Horizontal", 36),
    Sketcher.Constraint("Vertical", 37),
    Sketcher.Constraint("Horizontal", 38),
    Sketcher.Constraint("Vertical", 39),
    Sketcher.Constraint("Horizontal", 40),
    Sketcher.Constraint("Vertical", 41),
    Sketcher.Constraint("Horizontal", 42),
    Sketcher.Constraint("Vertical", 43),
    Sketcher.Constraint("Horizontal", 44),
    Sketcher.Constraint("Equal", 0, 1),
    Sketcher.Constraint("Equal", 1, 2),
    Sketcher.Constraint("Equal", 2, 3),
    Sketcher.Constraint("Equal", 3, 4),
    Sketcher.Constraint("Equal", 4, 5),
    Sketcher.Constraint("Equal", 5, 6),
    Sketcher.Constraint("Equal", 6, 7),
    Sketcher.Constraint("Equal", 7, 8),
    Sketcher.Constraint("Symmetric", 1, 3, 2, 3, -1),
    Sketcher.Constraint("Symmetric", 0, 3, 3, 3, -1),
    Sketcher.Constraint("Symmetric", 4, 3, 6, 3, -1),
    Sketcher.Constraint("Symmetric", 5, 3, 7, 3, -1),
    Sketcher.Constraint("Symmetric", 12, 2, 13, 2, -1),
    Sketcher.Constraint("Symmetric", 10, 2, 15, 2, -1),
    Sketcher.Constraint("Symmetric", 17, 2, 20, 2, -1),
    Sketcher.Constraint("Symmetric", 23, 2, 26, 2, -1),
    Sketcher.Constraint("Symmetric", 36, 2, 37, 2, -1),
    Sketcher.Constraint("Symmetric", 34, 2, 39, 2, -1),
    Sketcher.Constraint("PointOnObject", 8, 3, -1),
    Sketcher.Constraint("Horizontal", 0, 3, 1, 3),
    Sketcher.Constraint("Horizontal", 4, 3, 5, 3),
    Sketcher.Constraint("Horizontal", 20, 2, 23, 2),
    Sketcher.Constraint("Horizontal", 24, 2, 41, 2),
    Sketcher.Constraint("Horizontal", 26, 2, 43, 2),
    Sketcher.Constraint("Equal", 20, 17),
    Sketcher.Constraint("Equal", 17, 21),
    Sketcher.Constraint("Equal", 40, 29),
    Sketcher.Constraint("Diameter", 0, 3.5),
    Sketcher.Constraint("DistanceX", 10, 1, 10, 2, 17.0),
    Sketcher.Constraint("DistanceX", 18, 2, 18, 1, 7.0),
    Sketcher.Constraint("DistanceX", 24, 1, 24, 2, 1.0),
    Sketcher.Constraint("DistanceX", 30, 1, 30, 2, 2.0),
    Sketcher.Constraint("DistanceX", 34, 1, 34, 2, 50.0),
    Sketcher.Constraint("DistanceX", 42, 1, 42, 2, 10.0),
    Sketcher.Constraint("DistanceY", 33, 1, 33, 2, 40.0),
    Sketcher.Constraint("DistanceY", 9, 1, 9, 2, 37.6),
    Sketcher.Constraint("DistanceY", 0, 3, -1, 1, 57.0),
    Sketcher.Constraint("DistanceX", -1, 1, 8, 3, 33.0),
    Sketcher.Constraint("DistanceX", -1, 1, 9, 2, 89.0),
    Sketcher.Constraint("DistanceY", 11, 2, -1, 1, 71.0),
    Sketcher.Constraint("DistanceX", -1, 1, 29, 2, 44.0),
    Sketcher.Constraint("DistanceY", -1, 1, 29, 2, 25.0),
    Sketcher.Constraint("DistanceX", -1, 1, 33, 2, 20.0),
    Sketcher.Constraint("DistanceY", -1, 1, 33, 2, 90.0),
    Sketcher.Constraint("DistanceX", 0, 3, 1, 3, 40.0),
    Sketcher.Constraint("DistanceX", 41, 2, 19, 2, 15.0),
    Sketcher.Constraint("DistanceX", -1, 1, 0, 3, 77.5),
    Sketcher.Constraint("DistanceX", 22, 1, 22, 2, 28.039001),
    Sketcher.Constraint("DistanceX", -1, 1, 4, 3, 81.63),
    Sketcher.Constraint("DistanceY", 4, 3, -1, 1, 18.69),
    Sketcher.Constraint("DistanceX", -1, 1, 5, 3, 118.37),
    Sketcher.Constraint("DistanceX", -1, 1, 17, 2, 85.980499),
    Sketcher.Constraint("DistanceY", 19, 1, 19, 2, 28.527432),
])
pocket1 = body.newObject("PartDesign::Pocket", "Pocket")
pocket1.Profile = sketch2
pocket1.Length = 10
pocket1.Reversed = True
doc.recompute()

fillet = body.newObject("PartDesign::Fillet", "Fillet")
fillet.Base = (pocket1, edges_at(pocket1, [(-100, 1, 25), (-100, 1, -25)]))
fillet.Radius = 2
doc.recompute()

fillet2 = body.newObject("PartDesign::Fillet", "Fillet001")
fillet2.Base = (fillet, edges_at(fillet, [
    (20, 1, -50),
    (125, 1, 90),
    (125, 1, -90),
    (20, 1, 50),
    (70, 1, -90),
    (70, 1, 90),
]))
fillet2.Radius = 5
doc.recompute()

fillet3 = body.newObject("PartDesign::Fillet", "Fillet002")
fillet3.Base = (fillet2, edges_at(fillet2, [(70, 1, 50), (70, 1, -50)]))
fillet3.Radius = 10

# Sketch on XZ plane
sketch3 = body.newObject("Sketcher::SketchObject", "Sketch002")
sketch3.AttachmentSupport = (doc.getObject("XZ_Plane"), [""])
sketch3.MapMode = "FlatFace"
sketch3.AttachmentOffset = App.Placement(Vector(0, 0, -2), App.Rotation())
sketch3.addGeometry([
    Part.ArcOfCircle(Part.Circle(Vector(120.1, -18.7, 0), Vector(0, 0, 1), 1.8), math.radians(-90), math.radians(180)),  # 0
    Part.ArcOfCircle(Part.Circle(Vector(118.4, -20.4, 0), Vector(0, 0, 1), 1.8), math.radians(90), math.radians(360)),  # 1
    Part.ArcOfCircle(Part.Circle(Vector(120.1, 18.7, 0), Vector(0, 0, 1), 1.8), math.radians(180), math.radians(450)),  # 2
    Part.ArcOfCircle(Part.Circle(Vector(118.4, 20.4, 0), Vector(0, 0, 1), 1.8), math.radians(0), math.radians(270)),  # 3
    Part.ArcOfCircle(Part.Circle(Vector(81.6, 20.4, 0), Vector(0, 0, 1), 1.8), math.radians(-90), math.radians(180)),  # 4
    Part.ArcOfCircle(Part.Circle(Vector(79.9, 18.7, 0), Vector(0, 0, 1), 1.8), math.radians(90), math.radians(360)),  # 5
    Part.ArcOfCircle(Part.Circle(Vector(79.9, -18.7, 0), Vector(0, 0, 1), 1.8), math.radians(0), math.radians(270)),  # 6
    Part.ArcOfCircle(Part.Circle(Vector(81.6, -20.4, 0), Vector(0, 0, 1), 1.8), math.radians(180), math.radians(450)),  # 7
], False)
sketch3.addConstraint([
    Sketcher.Constraint("Coincident", 0, 1, 1, 2),
    Sketcher.Constraint("Coincident", 1, 1, 0, 2),
    Sketcher.Constraint("Coincident", 2, 1, 3, 2),
    Sketcher.Constraint("Coincident", 3, 1, 2, 2),
    Sketcher.Constraint("Coincident", 4, 1, 5, 2),
    Sketcher.Constraint("Coincident", 5, 1, 4, 2),
    Sketcher.Constraint("Coincident", 6, 1, 7, 2),
    Sketcher.Constraint("Coincident", 7, 1, 6, 2),
    Sketcher.Constraint("Equal", 0, 1),
    Sketcher.Constraint("Equal", 1, 2),
    Sketcher.Constraint("Equal", 2, 3),
    Sketcher.Constraint("Equal", 3, 4),
    Sketcher.Constraint("Equal", 4, 5),
    Sketcher.Constraint("Equal", 5, 6),
    Sketcher.Constraint("Equal", 6, 7),
    Sketcher.Constraint("Symmetric", 0, 3, 2, 3, -1),
    Sketcher.Constraint("Symmetric", 1, 3, 3, 3, -1),
    Sketcher.Constraint("Symmetric", 5, 3, 6, 3, -1),
    Sketcher.Constraint("Symmetric", 4, 3, 7, 3, -1),
    Sketcher.Constraint("Horizontal", 3, 3, 4, 3),
    Sketcher.Constraint("Horizontal", 2, 3, 5, 3),
    Sketcher.Constraint("Horizontal", 7, 3, 0, 1),
    Sketcher.Constraint("Vertical", 2, 3, 0, 1),
    Sketcher.Constraint("Vertical", 7, 3, 4, 1),
    Sketcher.Constraint("Radius", 0, 1.75),
    Sketcher.Constraint("DistanceX", -1, 1, 0, 3, 120.12),
    Sketcher.Constraint("DistanceY", 0, 3, -1, 1, 18.69),
    Sketcher.Constraint("DistanceX", -1, 1, 4, 3, 81.63),
])
pocket2 = body.newObject("PartDesign::Pocket", "Pocket001")
pocket2.Profile = sketch3
pocket2.Length = 10
pocket2.Reversed = True

# Sketch on XZ plane
sketch4 = body.newObject("Sketcher::SketchObject", "Sketch003")
sketch4.AttachmentSupport = (doc.getObject("XZ_Plane"), [""])
sketch4.MapMode = "FlatFace"
sketch4.AttachmentOffset = App.Placement(Vector(0, 0, -2), App.Rotation())
sketch4.addGeometry([
    Part.Circle(Vector(-70, 0, 0), Vector(0, 0, 1), 1.8),  # 0
    Part.Circle(Vector(-50, 0, 0), Vector(0, 0, 1), 1.8),  # 1
    Part.Circle(Vector(-30, 0, 0), Vector(0, 0, 1), 1.8),  # 2
    Part.Circle(Vector(-10, 0, 0), Vector(0, 0, 1), 1.8),  # 3
    Part.Circle(Vector(10, 0, 0), Vector(0, 0, 1), 1.8),  # 4
    Part.Circle(Vector(59, -10, 0), Vector(0, 0, 1), 1.5),  # 5
    Part.Circle(Vector(59, 10, 0), Vector(0, 0, 1), 1.5),  # 6
    Part.Circle(Vector(-21, -10, 0), Vector(0, 0, 1), 1.5),  # 7
    Part.Circle(Vector(-21, 10, 0), Vector(0, 0, 1), 1.5),  # 8
    Part.LineSegment(Vector(20, -25, 0), Vector(-80, -25, 0)),  # 9
    Part.LineSegment(Vector(-80, -25, 0), Vector(-70, -15, 0)),  # 10
    Part.LineSegment(Vector(-70, -15, 0), Vector(10, -15, 0)),  # 11
    Part.LineSegment(Vector(10, -15, 0), Vector(20, -25, 0)),  # 12
    Part.LineSegment(Vector(10, 15, 0), Vector(-70, 15, 0)),  # 13
    Part.LineSegment(Vector(-70, 15, 0), Vector(-80, 25, 0)),  # 14
    Part.LineSegment(Vector(-80, 25, 0), Vector(20, 25, 0)),  # 15
    Part.LineSegment(Vector(20, 25, 0), Vector(10, 15, 0)),  # 16
], False)
sketch4.addConstraint([
    Sketcher.Constraint("Coincident", 9, 2, 10, 1),
    Sketcher.Constraint("Coincident", 10, 2, 11, 1),
    Sketcher.Constraint("Coincident", 11, 2, 12, 1),
    Sketcher.Constraint("Coincident", 12, 2, 9, 1),
    Sketcher.Constraint("Coincident", 13, 2, 14, 1),
    Sketcher.Constraint("Coincident", 14, 2, 15, 1),
    Sketcher.Constraint("Coincident", 15, 2, 16, 1),
    Sketcher.Constraint("Coincident", 16, 2, 13, 1),
    Sketcher.Constraint("Horizontal", 9),
    Sketcher.Constraint("Horizontal", 11),
    Sketcher.Constraint("Horizontal", 13),
    Sketcher.Constraint("Horizontal", 15),
    Sketcher.Constraint("Equal", 0, 1),
    Sketcher.Constraint("Equal", 1, 2),
    Sketcher.Constraint("Equal", 2, 3),
    Sketcher.Constraint("Equal", 3, 4),
    Sketcher.Constraint("Equal", 5, 6),
    Sketcher.Constraint("Equal", 6, 7),
    Sketcher.Constraint("Equal", 7, 8),
    Sketcher.Constraint("Symmetric", 3, 3, 4, 3, -1, 1),
    Sketcher.Constraint("Symmetric", 5, 3, 6, 3, -1),
    Sketcher.Constraint("Symmetric", 7, 3, 8, 3, -1),
    Sketcher.Constraint("Symmetric", 10, 2, 13, 2, -1),
    Sketcher.Constraint("Symmetric", 9, 2, 14, 2, -1),
    Sketcher.Constraint("PointOnObject", 0, 3, -1),
    Sketcher.Constraint("PointOnObject", 1, 3, -1),
    Sketcher.Constraint("PointOnObject", 2, 3, -1),
    Sketcher.Constraint("PointOnObject", 3, 3, -1),
    Sketcher.Constraint("Perpendicular", 10, 12),
    Sketcher.Constraint("Parallel", 12, 14),
    Sketcher.Constraint("Perpendicular", 14, 16),
    Sketcher.Constraint("Horizontal", 5, 3, 7, 3),
    Sketcher.Constraint("Vertical", 0, 3, 10, 2),
    Sketcher.Constraint("Vertical", 4, 3, 11, 2),
    Sketcher.Constraint("Vertical", 12, 2, 15, 2),
    Sketcher.Constraint("Diameter", 5, 3.0),
    Sketcher.Constraint("Diameter", 0, 3.5),
    Sketcher.Constraint("DistanceX", 9, 2, 9, 1, 100.0),
    Sketcher.Constraint("DistanceX", 11, 1, 11, 2, 80.0),
    Sketcher.Constraint("DistanceX", 0, 3, -1, 1, 70.0),
    Sketcher.Constraint("DistanceX", 1, 3, -1, 1, 50.0),
    Sketcher.Constraint("DistanceX", 2, 3, -1, 1, 30.0),
    Sketcher.Constraint("DistanceY", 5, 3, -1, 1, 10.0),
    Sketcher.Constraint("DistanceY", 9, 2, -1, 1, 25.0),
    Sketcher.Constraint("DistanceX", -1, 1, 5, 3, 58.980499),
    Sketcher.Constraint("DistanceX", 7, 3, -1, 1, 21.019501),
])
pocket3 = body.newObject("PartDesign::Pocket", "Pocket002")
pocket3.Profile = sketch4
pocket3.Length = 10
pocket3.Reversed = True
doc.recompute()

fillet4 = body.newObject("PartDesign::Fillet", "Fillet003")
fillet4.Base = (pocket3, edges_at(pocket3, [
    (-80, 1, -25),
    (-70, 1, -15),
    (-70, 1, 15),
    (-80, 1, 25),
]))
fillet4.Radius = 5

doc.recompute()
